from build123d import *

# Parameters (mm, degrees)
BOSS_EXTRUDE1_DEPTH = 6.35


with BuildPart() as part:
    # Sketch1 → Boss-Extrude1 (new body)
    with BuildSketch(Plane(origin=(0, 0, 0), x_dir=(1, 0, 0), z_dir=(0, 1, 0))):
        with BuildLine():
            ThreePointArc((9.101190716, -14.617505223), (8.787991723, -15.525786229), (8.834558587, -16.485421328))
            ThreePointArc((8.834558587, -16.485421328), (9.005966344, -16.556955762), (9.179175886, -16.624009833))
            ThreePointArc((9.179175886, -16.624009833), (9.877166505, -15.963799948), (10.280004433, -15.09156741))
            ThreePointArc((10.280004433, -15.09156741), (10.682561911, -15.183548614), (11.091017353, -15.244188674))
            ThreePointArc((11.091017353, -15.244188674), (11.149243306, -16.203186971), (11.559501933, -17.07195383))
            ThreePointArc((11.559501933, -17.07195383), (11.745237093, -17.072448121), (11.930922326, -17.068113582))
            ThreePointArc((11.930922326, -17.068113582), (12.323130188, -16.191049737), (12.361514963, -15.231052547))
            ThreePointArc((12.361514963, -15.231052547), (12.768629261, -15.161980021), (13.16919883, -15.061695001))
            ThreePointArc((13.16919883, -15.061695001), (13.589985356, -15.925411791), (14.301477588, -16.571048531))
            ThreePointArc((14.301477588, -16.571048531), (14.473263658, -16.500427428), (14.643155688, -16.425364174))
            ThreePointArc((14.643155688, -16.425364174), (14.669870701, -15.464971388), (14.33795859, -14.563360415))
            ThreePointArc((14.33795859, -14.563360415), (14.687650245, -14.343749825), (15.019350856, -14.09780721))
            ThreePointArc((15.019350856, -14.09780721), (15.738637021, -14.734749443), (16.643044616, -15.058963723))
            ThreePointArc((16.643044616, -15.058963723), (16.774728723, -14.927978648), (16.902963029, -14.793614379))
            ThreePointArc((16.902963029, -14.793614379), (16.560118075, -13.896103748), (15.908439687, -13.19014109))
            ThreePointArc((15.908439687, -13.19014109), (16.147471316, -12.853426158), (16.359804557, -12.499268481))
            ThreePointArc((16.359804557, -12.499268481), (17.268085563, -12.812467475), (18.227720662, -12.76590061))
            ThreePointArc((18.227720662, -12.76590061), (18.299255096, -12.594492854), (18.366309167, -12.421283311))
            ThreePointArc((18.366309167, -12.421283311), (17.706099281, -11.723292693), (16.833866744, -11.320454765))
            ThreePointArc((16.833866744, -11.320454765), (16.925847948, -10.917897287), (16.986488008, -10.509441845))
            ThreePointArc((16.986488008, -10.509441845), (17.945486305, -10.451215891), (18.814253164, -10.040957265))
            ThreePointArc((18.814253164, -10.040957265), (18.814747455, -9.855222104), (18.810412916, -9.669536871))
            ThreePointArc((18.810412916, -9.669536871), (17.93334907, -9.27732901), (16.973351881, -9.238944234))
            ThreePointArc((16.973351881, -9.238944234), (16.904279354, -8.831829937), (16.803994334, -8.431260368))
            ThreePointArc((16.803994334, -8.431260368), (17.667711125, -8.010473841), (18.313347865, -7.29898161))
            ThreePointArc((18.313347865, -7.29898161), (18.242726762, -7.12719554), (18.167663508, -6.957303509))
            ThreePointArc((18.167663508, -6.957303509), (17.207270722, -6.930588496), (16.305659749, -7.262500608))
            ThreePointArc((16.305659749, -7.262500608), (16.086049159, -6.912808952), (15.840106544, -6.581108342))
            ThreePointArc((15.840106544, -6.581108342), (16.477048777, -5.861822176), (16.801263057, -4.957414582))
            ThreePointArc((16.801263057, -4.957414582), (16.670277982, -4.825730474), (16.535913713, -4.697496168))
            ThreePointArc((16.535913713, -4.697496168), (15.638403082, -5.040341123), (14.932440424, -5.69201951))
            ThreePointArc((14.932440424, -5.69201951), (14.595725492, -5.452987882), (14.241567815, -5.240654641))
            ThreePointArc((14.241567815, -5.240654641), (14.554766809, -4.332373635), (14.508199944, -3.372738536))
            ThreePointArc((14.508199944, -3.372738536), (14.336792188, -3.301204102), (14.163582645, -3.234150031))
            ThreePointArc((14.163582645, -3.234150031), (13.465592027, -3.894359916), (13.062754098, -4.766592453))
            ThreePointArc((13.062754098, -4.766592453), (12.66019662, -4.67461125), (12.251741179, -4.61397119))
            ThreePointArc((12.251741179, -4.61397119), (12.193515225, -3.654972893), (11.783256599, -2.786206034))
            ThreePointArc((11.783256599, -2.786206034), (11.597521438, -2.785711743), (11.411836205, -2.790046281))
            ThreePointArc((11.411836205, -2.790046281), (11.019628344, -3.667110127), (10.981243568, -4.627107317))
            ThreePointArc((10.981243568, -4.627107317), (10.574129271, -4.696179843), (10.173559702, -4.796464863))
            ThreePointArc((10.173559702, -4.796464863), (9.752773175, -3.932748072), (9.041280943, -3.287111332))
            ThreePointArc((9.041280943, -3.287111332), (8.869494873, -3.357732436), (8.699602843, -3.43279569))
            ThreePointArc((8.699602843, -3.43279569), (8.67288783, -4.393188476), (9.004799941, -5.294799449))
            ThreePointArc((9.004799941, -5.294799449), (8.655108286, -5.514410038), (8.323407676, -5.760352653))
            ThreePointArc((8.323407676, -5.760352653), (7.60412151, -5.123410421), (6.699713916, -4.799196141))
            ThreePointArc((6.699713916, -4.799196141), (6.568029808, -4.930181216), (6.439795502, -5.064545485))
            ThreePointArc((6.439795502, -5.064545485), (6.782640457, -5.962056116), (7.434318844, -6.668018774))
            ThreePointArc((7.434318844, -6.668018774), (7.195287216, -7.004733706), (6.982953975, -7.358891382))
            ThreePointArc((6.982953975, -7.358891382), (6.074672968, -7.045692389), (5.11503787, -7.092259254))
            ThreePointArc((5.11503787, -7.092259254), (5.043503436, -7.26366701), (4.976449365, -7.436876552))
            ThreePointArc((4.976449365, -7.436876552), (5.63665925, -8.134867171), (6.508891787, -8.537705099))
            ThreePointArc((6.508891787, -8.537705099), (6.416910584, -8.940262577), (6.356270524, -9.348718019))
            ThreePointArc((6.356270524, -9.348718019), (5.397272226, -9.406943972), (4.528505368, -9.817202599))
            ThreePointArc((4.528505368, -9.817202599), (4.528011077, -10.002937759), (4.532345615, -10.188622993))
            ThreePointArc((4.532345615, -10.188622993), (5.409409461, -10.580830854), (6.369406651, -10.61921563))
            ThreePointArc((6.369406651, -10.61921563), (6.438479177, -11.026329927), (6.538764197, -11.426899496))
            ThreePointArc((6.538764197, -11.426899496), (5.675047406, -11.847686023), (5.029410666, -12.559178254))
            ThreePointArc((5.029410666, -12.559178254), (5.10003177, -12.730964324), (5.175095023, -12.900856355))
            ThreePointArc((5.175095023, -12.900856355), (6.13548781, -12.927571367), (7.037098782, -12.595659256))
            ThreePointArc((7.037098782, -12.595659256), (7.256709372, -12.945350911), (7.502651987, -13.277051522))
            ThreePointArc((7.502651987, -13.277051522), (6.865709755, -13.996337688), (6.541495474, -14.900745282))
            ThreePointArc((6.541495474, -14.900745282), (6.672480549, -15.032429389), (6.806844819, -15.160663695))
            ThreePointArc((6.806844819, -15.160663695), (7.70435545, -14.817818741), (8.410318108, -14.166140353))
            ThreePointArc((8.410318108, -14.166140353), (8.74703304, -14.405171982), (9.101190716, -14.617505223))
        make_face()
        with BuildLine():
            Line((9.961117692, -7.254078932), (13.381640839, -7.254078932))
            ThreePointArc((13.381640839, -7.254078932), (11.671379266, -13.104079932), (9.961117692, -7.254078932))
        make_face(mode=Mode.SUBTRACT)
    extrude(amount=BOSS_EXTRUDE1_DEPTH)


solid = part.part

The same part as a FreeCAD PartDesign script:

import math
import FreeCAD as App
import Part
import Sketcher
from FreeCAD import Vector
Q = App.Units.Quantity

doc = App.newDocument("Part")
body = doc.addObject("PartDesign::Body", "Body")

# Sketch on XZ plane
sketch1 = body.newObject("Sketcher::SketchObject", "Sketch")
sketch1.AttachmentSupport = (doc.getObject("XZ_Plane"), [""])
sketch1.MapMode = "FlatFace"
sketch1.addGeometry([
    Part.ArcOfCircle(Part.Circle(Vector(11.302504, 15.884715, 0), Vector(0, 0, 1), 2.54), math.radians(166.320036), math.radians(209.927361)),  # 0
    Part.ArcOfCircle(Part.Circle(Vector(11.67138, 9.929079, 0), Vector(0, 0, 1), 7.143751), math.radians(110.417901), math.radians(113.397338)),  # 1
    Part.ArcOfCircle(Part.Circle(Vector(7.814256, 14.48191, 0), Vector(0, 0, 1), 2.54), math.radians(13.887878), math.radians(57.495203)),  # 2
    Part.ArcOfCircle(Part.Circle(Vector(11.671379, 9.92908, 0), Vector(0, 0, 1), 5.3467), math.radians(96.231495), math.radians(105.083744)),  # 3
    Part.ArcOfCircle(Part.Circle(Vector(13.609706, 15.572532, 0), Vector(0, 0, 1), 2.54), math.radians(143.820036), math.radians(187.427361)),  # 4
    Part.ArcOfCircle(Part.Circle(Vector(11.671379, 9.929081, 0), Vector(0, 0, 1), 7.143749), math.radians(87.917901), math.radians(90.897339)),  # 5
    Part.ArcOfCircle(Part.Circle(Vector(9.850154, 15.611404, 0), Vector(0, 0, 1), 2.54), math.radians(-8.612122), math.radians(34.995203)),  # 6
    Part.ArcOfCircle(Part.Circle(Vector(11.671379, 9.92908, 0), Vector(0, 0, 1), 5.3467), math.radians(73.731495), math.radians(82.583744)),  # 7
    Part.ArcOfCircle(Part.Circle(Vector(15.621815, 14.401185, 0), Vector(0, 0, 1), 2.54), math.radians(121.320036), math.radians(164.927361)),  # 8
    Part.ArcOfCircle(Part.Circle(Vector(11.67138, 9.929081, 0), Vector(0, 0, 1), 7.143749), math.radians(65.417901), math.radians(68.397339)),  # 9
    Part.ArcOfCircle(Part.Circle(Vector(12.163318, 15.875815, 0), Vector(0, 0, 1), 2.54), math.radians(-31.112122), math.radians(12.495203)),  # 10
    Part.ArcOfCircle(Part.Circle(Vector(11.671379, 9.92908, 0), Vector(0, 0, 1), 5.3467), math.radians(51.231495), math.radians(60.083744)),  # 11
    Part.ArcOfCircle(Part.Circle(Vector(17.032506, 12.549, 0), Vector(0, 0, 1), 2.54), math.radians(98.820036), math.radians(142.427361)),  # 12
    Part.ArcOfCircle(Part.Circle(Vector(11.671378, 9.929079, 0), Vector(0, 0, 1), 7.143751), math.radians(42.917901), math.radians(45.897338)),  # 13
    Part.ArcOfCircle(Part.Circle(Vector(14.401588, 15.23489, 0), Vector(0, 0, 1), 2.54), math.radians(-53.612122), math.radians(-10.004797)),  # 14
    Part.ArcOfCircle(Part.Circle(Vector(11.671379, 9.92908, 0), Vector(0, 0, 1), 5.3467), math.radians(28.731495), math.radians(37.583744)),  # 15
    Part.ArcOfCircle(Part.Circle(Vector(17.627015, 10.297956, 0), Vector(0, 0, 1), 2.54), math.radians(76.320036), math.radians(119.927361)),  # 16
    Part.ArcOfCircle(Part.Circle(Vector(11.67138, 9.92908, 0), Vector(0, 0, 1), 7.14375), math.radians(20.417901), math.radians(23.397338)),  # 17
    Part.ArcOfCircle(Part.Circle(Vector(16.224209, 13.786204, 0), Vector(0, 0, 1), 2.54), math.radians(-76.112122), math.radians(-32.504797)),  # 18
    Part.ArcOfCircle(Part.Circle(Vector(11.671379, 9.92908, 0), Vector(0, 0, 1), 5.3467), math.radians(6.231495), math.radians(15.083744)),  # 19
    Part.ArcOfCircle(Part.Circle(Vector(17.314832, 7.990754, 0), Vector(0, 0, 1), 2.54), math.radians(53.820036), math.radians(97.427361)),  # 20
    Part.ArcOfCircle(Part.Circle(Vector(11.67138, 9.92908, 0), Vector(0, 0, 1), 7.143749), math.radians(-2.082099), math.radians(0.897339)),  # 21
    Part.ArcOfCircle(Part.Circle(Vector(17.353703, 11.750305, 0), Vector(0, 0, 1), 2.54), math.radians(-98.612122), math.radians(-55.004797)),  # 22
    Part.ArcOfCircle(Part.Circle(Vector(11.671379, 9.92908, 0), Vector(0, 0, 1), 5.3467), math.radians(-16.268505), math.radians(-7.416256)),  # 23
    Part.ArcOfCircle(Part.Circle(Vector(16.143484, 5.978644, 0), Vector(0, 0, 1), 2.54), math.radians(31.320036), math.radians(74.927361)),  # 24
    Part.ArcOfCircle(Part.Circle(Vector(11.67138, 9.92908, 0), Vector(0, 0, 1), 7.14375), math.radians(-24.582099), math.radians(-21.602661)),  # 25
    Part.ArcOfCircle(Part.Circle(Vector(17.618115, 9.437141, 0), Vector(0, 0, 1), 2.54), math.radians(-121.112122), math.radians(-77.504797)),  # 26
    Part.ArcOfCircle(Part.Circle(Vector(11.671379, 9.92908, 0), Vector(0, 0, 1), 5.3467), math.radians(-38.768505), math.radians(-29.916256)),  # 27
    Part.ArcOfCircle(Part.Circle(Vector(14.291299, 4.567953, 0), Vector(0, 0, 1), 2.54), math.radians(8.820036), math.radians(52.427361)),  # 28
    Part.ArcOfCircle(Part.Circle(Vector(11.671379, 9.92908, 0), Vector(0, 0, 1), 7.14375), math.radians(-47.082099), math.radians(-44.102662)),  # 29
    Part.ArcOfCircle(Part.Circle(Vector(16.97719, 7.198871, 0), Vector(0, 0, 1), 2.54), math.radians(-143.612122), math.radians(-100.004797)),  # 30
    Part.ArcOfCircle(Part.Circle(Vector(11.671379, 9.92908, 0), Vector(0, 0, 1), 5.3467), math.radians(-61.268505), math.radians(-52.416256)),  # 31
    Part.ArcOfCircle(Part.Circle(Vector(12.040255, 3.973444, 0), Vector(0, 0, 1), 2.54), math.radians(-13.679964), math.radians(29.927361)),  # 32
    Part.ArcOfCircle(Part.Circle(Vector(11.671379, 9.92908, 0), Vector(0, 0, 1), 7.14375), math.radians(-69.582099), math.radians(-66.602662)),  # 33
    Part.ArcOfCircle(Part.Circle(Vector(15.528503, 5.37625, 0), Vector(0, 0, 1), 2.54), math.radians(-166.112122), math.radians(-122.504797)),  # 34
    Part.ArcOfCircle(Part.Circle(Vector(11.671379, 9.92908, 0), Vector(0, 0, 1), 5.3467), math.radians(-83.768505), math.radians(-74.916256)),  # 35
    Part.ArcOfCircle(Part.Circle(Vector(9.733053, 4.285628, 0), Vector(0, 0, 1), 2.54), math.radians(-36.179964), math.radians(7.427361)),  # 36
    Part.ArcOfCircle(Part.Circle(Vector(11.671379, 9.929081, 0), Vector(0, 0, 1), 7.143751), math.radians(-92.082099), math.radians(-89.102662)),  # 37
    Part.ArcOfCircle(Part.Circle(Vector(13.492604, 4.246756, 0), Vector(0, 0, 1), 2.54), math.radians(171.387878), math.radians(214.995203)),  # 38
    Part.ArcOfCircle(Part.Circle(Vector(11.671379, 9.92908, 0), Vector(0, 0, 1), 5.3467), math.radians(-106.268505), math.radians(-97.416256)),  # 39
    Part.ArcOfCircle(Part.Circle(Vector(7.720944, 5.456975, 0), Vector(0, 0, 1), 2.54), math.radians(-58.679964), math.radians(-15.072639)),  # 40
    Part.ArcOfCircle(Part.Circle(Vector(11.671379, 9.92908, 0), Vector(0, 0, 1), 7.14375), math.radians(-114.582099), math.radians(-111.602662)),  # 41
    Part.ArcOfCircle(Part.Circle(Vector(11.179441, 3.982345, 0), Vector(0, 0, 1), 2.54), math.radians(148.887878), math.radians(192.495203)),  # 42
    Part.ArcOfCircle(Part.Circle(Vector(11.671379, 9.92908, 0), Vector(0, 0, 1), 5.3467), math.radians(-128.768505), math.radians(-119.916256)),  # 43
    Part.ArcOfCircle(Part.Circle(Vector(6.310252, 7.30916, 0), Vector(0, 0, 1), 2.54), math.radians(-81.179964), math.radians(-37.572639)),  # 44
    Part.ArcOfCircle(Part.Circle(Vector(11.671379, 9.92908, 0), Vector(0, 0, 1), 7.14375), math.radians(-137.082099), math.radians(-134.102662)),  # 45
    Part.ArcOfCircle(Part.Circle(Vector(8.94117, 4.62327, 0), Vector(0, 0, 1), 2.54), math.radians(126.387878), math.radians(169.995203)),  # 46
    Part.ArcOfCircle(Part.Circle(Vector(11.671379, 9.92908, 0), Vector(0, 0, 1), 5.3467), math.radians(-151.268505), math.radians(-142.416256)),  # 47
    Part.ArcOfCircle(Part.Circle(Vector(5.715744, 9.560204, 0), Vector(0, 0, 1), 2.54), math.radians(-103.679964), math.radians(-60.072639)),  # 48
    Part.ArcOfCircle(Part.Circle(Vector(11.671379, 9.92908, 0), Vector(0, 0, 1), 7.14375), math.radians(-159.582099), math.radians(-156.602662)),  # 49
    Part.ArcOfCircle(Part.Circle(Vector(7.118549, 6.071956, 0), Vector(0, 0, 1), 2.54), math.radians(103.887878), math.radians(147.495203)),  # 50
    Part.ArcOfCircle(Part.Circle(Vector(11.671379, 9.92908, 0), Vector(0, 0, 1), 5.3467), math.radians(-173.768505), math.radians(-164.916256)),  # 51
    Part.ArcOfCircle(Part.Circle(Vector(6.027927, 11.867406, 0), Vector(0, 0, 1), 2.54), math.radians(-126.179964), math.radians(-82.572639)),  # 52
    Part.ArcOfCircle(Part.Circle(Vector(11.67138, 9.92908, 0), Vector(0, 0, 1), 7.143751), math.radians(177.917901), math.radians(180.897338)),  # 53
    Part.ArcOfCircle(Part.Circle(Vector(5.989056, 8.107855, 0), Vector(0, 0, 1), 2.54), math.radians(81.387878), math.radians(124.995203)),  # 54
    Part.ArcOfCircle(Part.Circle(Vector(11.671379, 9.92908, 0), Vector(0, 0, 1), 5.3467), math.radians(163.731495), math.radians(172.583744)),  # 55
    Part.ArcOfCircle(Part.Circle(Vector(7.199275, 13.879516, 0), Vector(0, 0, 1), 2.54), math.radians(-148.679964), math.radians(-105.072639)),  # 56
    Part.ArcOfCircle(Part.Circle(Vector(11.671381, 9.929079, 0), Vector(0, 0, 1), 7.143752), math.radians(155.417901), math.radians(158.397338)),  # 57
    Part.ArcOfCircle(Part.Circle(Vector(5.724644, 10.421018, 0), Vector(0, 0, 1), 2.54), math.radians(58.887878), math.radians(102.495203)),  # 58
    Part.ArcOfCircle(Part.Circle(Vector(11.671379, 9.92908, 0), Vector(0, 0, 1), 5.3467), math.radians(141.231495), math.radians(150.083744)),  # 59
    Part.ArcOfCircle(Part.Circle(Vector(9.05146, 15.290207, 0), Vector(0, 0, 1), 2.54), math.radians(-171.179964), math.radians(-127.572639)),  # 60
    Part.ArcOfCircle(Part.Circle(Vector(11.671379, 9.92908, 0), Vector(0, 0, 1), 7.14375), math.radians(132.917901), math.radians(135.897338)),  # 61
    Part.ArcOfCircle(Part.Circle(Vector(6.365569, 12.659289, 0), Vector(0, 0, 1), 2.54), math.radians(36.387878), math.radians(79.995203)),  # 62
    Part.ArcOfCircle(Part.Circle(Vector(11.671379, 9.92908, 0), Vector(0, 0, 1), 5.3467), math.radians(118.731495), math.radians(127.583744)),  # 63
    Part.ArcOfCircle(Part.Circle(Vector(11.671379, 9.92908, 0), Vector(0, 0, 1), 3.175), math.radians(-57.40719), math.radians(237.40719)),  # 64
    Part.LineSegment(Vector(9.961118, 7.254079, 0), Vector(13.381641, 7.254079, 0)),  # 65
], False)
sketch1.addConstraint([
    Sketcher.Constraint("Coincident", 0, 1, 1, 2),
    Sketcher.Constraint("Coincident", 1, 1, 2, 2),
    Sketcher.Constraint("Coincident", 2, 1, 3, 2),
    Sketcher.Constraint("Coincident", 3, 1, 4, 2),
    Sketcher.Constraint("Coincident", 4, 1, 5, 2),
    Sketcher.Constraint("Coincident", 5, 1, 6, 2),
    Sketcher.Constraint("Coincident", 6, 1, 7, 2),
    Sketcher.Constraint("Coincident", 7, 1, 8, 2),
    Sketcher.Constraint("Coincident", 8, 1, 9, 2),
    Sketcher.Constraint("Coincident", 9, 1, 10, 2),
    Sketcher.Constraint("Coincident", 10, 1, 11, 2),
    Sketcher.Constraint("Coincident", 11, 1, 12, 2),
    Sketcher.Constraint("Coincident", 12, 1, 13, 2),
    Sketcher.Constraint("Coincident", 13, 1, 14, 2),
    Sketcher.Constraint("Coincident", 14, 1, 15, 2),
    Sketcher.Constraint("Coincident", 15, 1, 16, 2),
    Sketcher.Constraint("Coincident", 16, 1, 17, 2),
    Sketcher.Constraint("Coincident", 17, 1, 18, 2),
    Sketcher.Constraint("Coincident", 18, 1, 19, 2),
    Sketcher.Constraint("Coincident", 19, 1, 20, 2),
    Sketcher.Constraint("Coincident", 20, 1, 21, 2),
    Sketcher.Constraint("Coincident", 21, 1, 22, 2),
    Sketcher.Constraint("Coincident", 22, 1, 23, 2),
    Sketcher.Constraint("Coincident", 23, 1, 24, 2),
    Sketcher.Constraint("Coincident", 24, 1, 25, 2),
    Sketcher.Constraint("Coincident", 25, 1, 26, 2),
    Sketcher.Constraint("Coincident", 26, 1, 27, 2),
    Sketcher.Constraint("Coincident", 27, 1, 28, 2),
    Sketcher.Constraint("Coincident", 28, 1, 29, 2),
    Sketcher.Constraint("Coincident", 29, 1, 30, 2),
    Sketcher.Constraint("Coincident", 30, 1, 31, 2),
    Sketcher.Constraint("Coincident", 31, 1, 32, 2),
    Sketcher.Constraint("Coincident", 32, 1, 33, 2),
    Sketcher.Constraint("Coincident", 33, 1, 34, 2),
    Sketcher.Constraint("Coincident", 34, 1, 35, 2),
    Sketcher.Constraint("Coincident", 35, 1, 36, 2),
    Sketcher.Constraint("Coincident", 36, 1, 37, 2),
    Sketcher.Constraint("Coincident", 37, 1, 38, 2),
    Sketcher.Constraint("Coincident", 38, 1, 39, 2),
    Sketcher.Constraint("Coincident", 39, 1, 40, 2),
    Sketcher.Constraint("Coincident", 40, 1, 41, 2),
    Sketcher.Constraint("Coincident", 41, 1, 42, 2),
    Sketcher.Constraint("Coincident", 42, 1, 43, 2),
    Sketcher.Constraint("Coincident", 43, 1, 44, 2),
    Sketcher.Constraint("Coincident", 44, 1, 45, 2),
    Sketcher.Constraint("Coincident", 45, 1, 46, 2),
    Sketcher.Constraint("Coincident", 46, 1, 47, 2),
    Sketcher.Constraint("Coincident", 47, 1, 48, 2),
    Sketcher.Constraint("Coincident", 48, 1, 49, 2),
    Sketcher.Constraint("Coincident", 49, 1, 50, 2),
    Sketcher.Constraint("Coincident", 50, 1, 51, 2),
    Sketcher.Constraint("Coincident", 51, 1, 52, 2),
    Sketcher.Constraint("Coincident", 52, 1, 53, 2),
    Sketcher.Constraint("Coincident", 53, 1, 54, 2),
    Sketcher.Constraint("Coincident", 54, 1, 55, 2),
    Sketcher.Constraint("Coincident", 55, 1, 56, 2),
    Sketcher.Constraint("Coincident", 56, 1, 57, 2),
    Sketcher.Constraint("Coincident", 57, 1, 58, 2),
    Sketcher.Constraint("Coincident", 58, 1, 59, 2),
    Sketcher.Constraint("Coincident", 59, 1, 60, 2),
    Sketcher.Constraint("Coincident", 60, 1, 61, 2),
    Sketcher.Constraint("Coincident", 61, 1, 62, 2),
    Sketcher.Constraint("Coincident", 62, 1, 63, 2),
    Sketcher.Constraint("Coincident", 63, 1, 0, 2),
    Sketcher.Constraint("Coincident", 64, 1, 65, 2),
    Sketcher.Constraint("Coincident", 65, 1, 64, 2),
    Sketcher.Constraint("Horizontal", 65),
    Sketcher.Constraint("Coincident", 3, 3, 1, 3),
    Sketcher.Constraint("Coincident", 5, 3, 1, 3),
    Sketcher.Constraint("Coincident", 7, 3, 1, 3),
    Sketcher.Constraint("Coincident", 9, 3, 1, 3),
    Sketcher.Constraint("Coincident", 11, 3, 1, 3),
    Sketcher.Constraint("Coincident", 13, 3, 1, 3),
    Sketcher.Constraint("Coincident", 15, 3, 1, 3),
    Sketcher.Constraint("Coincident", 17, 3, 1, 3),
    Sketcher.Constraint("Coincident", 19, 3, 1, 3),
    Sketcher.Constraint("Coincident", 21, 3, 1, 3),
    Sketcher.Constraint("Coincident", 23, 3, 1, 3),
    Sketcher.Constraint("Coincident", 25, 3, 1, 3),
    Sketcher.Constraint("Coincident", 27, 3, 1, 3),
    Sketcher.Constraint("Coincident", 29, 3, 1, 3),
    Sketcher.Constraint("Coincident", 31, 3, 1, 3),
    Sketcher.Constraint("Coincident", 33, 3, 1, 3),
    Sketcher.Constraint("Coincident", 35, 3, 1, 3),
    Sketcher.Constraint("Coincident", 37, 3, 1, 3),
    Sketcher.Constraint("Coincident", 39, 3, 1, 3),
    Sketcher.Constraint("Coincident", 41, 3, 1, 3),
    Sketcher.Constraint("Coincident", 43, 3, 1, 3),
    Sketcher.Constraint("Coincident", 45, 3, 1, 3),
    Sketcher.Constraint("Coincident", 47, 3, 1, 3),
    Sketcher.Constraint("Coincident", 49, 3, 1, 3),
    Sketcher.Constraint("Coincident", 51, 3, 1, 3),
    Sketcher.Constraint("Coincident", 53, 3, 1, 3),
    Sketcher.Constraint("Coincident", 55, 3, 1, 3),
    Sketcher.Constraint("Coincident", 57, 3, 1, 3),
    Sketcher.Constraint("Coincident", 59, 3, 1, 3),
    Sketcher.Constraint("Coincident", 61, 3, 1, 3),
    Sketcher.Constraint("Coincident", 63, 3, 1, 3),
    Sketcher.Constraint("Coincident", 64, 3, 1, 3),
    Sketcher.Constraint("Equal", 0, 2),
    Sketcher.Constraint("Equal", 2, 4),
    Sketcher.Constraint("Equal", 1, 5),
    Sketcher.Constraint("Equal", 4, 6),
    Sketcher.Constraint("Equal", 3, 7),
    Sketcher.Constraint("Equal", 6, 8),
    Sketcher.Constraint("Equal", 5, 9),
    Sketcher.Constraint("Equal", 8, 10),
    Sketcher.Constraint("Equal", 7, 11),
    Sketcher.Constraint("Equal", 10, 12),
    Sketcher.Constraint("Equal", 5, 13),
    Sketcher.Constraint("Equal", 12, 14),
    Sketcher.Constraint("Equal", 11, 15),
    Sketcher.Constraint("Equal", 14, 16),
    Sketcher.Constraint("Equal", 13, 17),
    Sketcher.Constraint("Equal", 16, 18),
    Sketcher.Constraint("Equal", 15, 19),
    Sketcher.Constraint("Equal", 18, 20),
    Sketcher.Constraint("Equal", 17, 21),
    Sketcher.Constraint("Equal", 20, 22),
    Sketcher.Constraint("Equal", 19, 23),
    Sketcher.Constraint("Equal", 22, 24),
    Sketcher.Constraint("Equal", 21, 25),
    Sketcher.Constraint("Equal", 24, 26),
    Sketcher.Constraint("Equal", 23, 27),
    Sketcher.Constraint("Equal", 26, 28),
    Sketcher.Constraint("Equal", 25, 29),
    Sketcher.Constraint("Equal", 28, 30),
    Sketcher.Constraint("Equal", 27, 31),
    Sketcher.Constraint("Equal", 30, 32),
    Sketcher.Constraint("Equal", 29, 33),
    Sketcher.Constraint("Equal", 32, 34),
    Sketcher.Constraint("Equal", 31, 35),
    Sketcher.Constraint("Equal", 34, 36),
    Sketcher.Constraint("Equal", 33, 37),
    Sketcher.Constraint("Equal", 36, 38),
    Sketcher.Constraint("Equal", 35, 39),
    Sketcher.Constraint("Equal", 38, 40),
    Sketcher.Constraint("Equal", 37, 41),
    Sketcher.Constraint("Equal", 40, 42),
    Sketcher.Constraint("Equal", 39, 43),
    Sketcher.Constraint("Equal", 42, 44),
    Sketcher.Constraint("Equal", 41, 45),
    Sketcher.Constraint("Equal", 44, 46),
    Sketcher.Constraint("Equal", 43, 47),
    Sketcher.Constraint("Equal", 46, 48),
    Sketcher.Constraint("Equal", 45, 49),
    Sketcher.Constraint("Equal", 48, 50),
    Sketcher.Constraint("Equal", 47, 51),
    Sketcher.Constraint("Equal", 50, 52),
    Sketcher.Constraint("Equal", 49, 53),
    Sketcher.Constraint("Equal", 52, 54),
    Sketcher.Constraint("Equal", 51, 55),
    Sketcher.Constraint("Equal", 54, 56),
    Sketcher.Constraint("Equal", 53, 57),
    Sketcher.Constraint("Equal", 56, 58),
    Sketcher.Constraint("Equal", 55, 59),
    Sketcher.Constraint("Equal", 58, 60),
    Sketcher.Constraint("Equal", 53, 61),
    Sketcher.Constraint("Equal", 60, 62),
    Sketcher.Constraint("Equal", 59, 63),
    Sketcher.Constraint("Radius", 0, Q("0.1 in")),
    Sketcher.Constraint("Radius", 1, Q("0.28125 in")),
    Sketcher.Constraint("Radius", 64, Q("0.125 in")),
    Sketcher.Constraint("Radius", 3, Q("0.2105 in")),
    Sketcher.Constraint("DistanceY", -1, 1, 12, 3, Q("12.549 mm")),
    Sketcher.Constraint("DistanceX", -1, 1, 28, 3, Q("14.291299 mm")),
    Sketcher.Constraint("DistanceX", -1, 1, 4, 1, Q("11.559502 mm")),
    Sketcher.Constraint("DistanceX", -1, 1, 7, 1, Q("13.169199 mm")),
    Sketcher.Constraint("DistanceY", -1, 1, 16, 1, Q("12.765901 mm")),
    Sketcher.Constraint("DistanceY", -1, 1, 26, 1, Q("7.262501 mm")),
    Sketcher.Constraint("DistanceX", -1, 1, 32, 1, Q("14.5082 mm")),
    Sketcher.Constraint("DistanceX", -1, 1, 42, 1, Q("9.0048 mm")),
    Sketcher.Constraint("DistanceY", -1, 1, 42, 1, Q("5.294799 mm")),
    Sketcher.Constraint("DistanceY", -1, 1, 55, 1, Q("11.426899 mm")),
    Sketcher.Constraint("DistanceX", -1, 1, 58, 1, Q("7.037099 mm")),
    Sketcher.Constraint("DistanceX", 65, 1, 65, 2, Q("3.420523 mm")),
    Sketcher.Constraint("DistanceX", -1, 1, 1, 3, Q("11.67138 mm")),
    Sketcher.Constraint("DistanceY", -1, 1, 2, 3, Q("14.48191 mm")),
    Sketcher.Constraint("DistanceX", -1, 1, 14, 3, Q("14.401588 mm")),
    Sketcher.Constraint("DistanceY", -1, 1, 14, 3, Q("15.23489 mm")),
    Sketcher.Constraint("DistanceX", -1, 1, 18, 3, Q("16.224209 mm")),
    Sketcher.Constraint("DistanceX", -1, 1, 20, 3, Q("17.314832 mm")),
    Sketcher.Constraint("DistanceY", -1, 1, 26, 3, Q("9.437141 mm")),
    Sketcher.Constraint("DistanceX", -1, 1, 30, 3, Q("16.97719 mm")),
    Sketcher.Constraint("DistanceY", -1, 1, 30, 3, Q("7.198871 mm")),
    Sketcher.Constraint("DistanceY", -1, 1, 34, 3, Q("5.37625 mm")),
    Sketcher.Constraint("DistanceX", -1, 1, 42, 3, Q("11.179441 mm")),
    Sketcher.Constraint("DistanceY", -1, 1, 44, 3, Q("7.30916 mm")),
    Sketcher.Constraint("DistanceX", -1, 1, 46, 3, Q("8.94117 mm")),
    Sketcher.Constraint("DistanceY", -1, 1, 46, 3, Q("4.62327 mm")),
    Sketcher.Constraint("DistanceX", -1, 1, 50, 3, Q("7.118549 mm")),
    Sketcher.Constraint("DistanceY", -1, 1, 58, 3, Q("10.421018 mm")),
    Sketcher.Constraint("DistanceX", -1, 1, 60, 3, Q("9.05146 mm")),
    Sketcher.Constraint("DistanceX", -1, 1, 62, 3, Q("6.365569 mm")),
    Sketcher.Constraint("DistanceY", -1, 1, 62, 3, Q("12.659289 mm")),
    Sketcher.Constraint("DistanceX", -1, 1, 0, 1, Q("8.834559 mm")),
    Sketcher.Constraint("DistanceY", -1, 1, 1, 1, Q("16.62401 mm")),
    Sketcher.Constraint("DistanceY", -1, 1, 3, 1, Q("15.244189 mm")),
    Sketcher.Constraint("DistanceY", -1, 1, 8, 1, Q("16.571049 mm")),
    Sketcher.Constraint("DistanceX", -1, 1, 10, 1, Q("14.337959 mm")),
    Sketcher.Constraint("DistanceX", -1, 1, 11, 1, Q("15.019351 mm")),
    Sketcher.Constraint("DistanceY", -1, 1, 15, 1, Q("12.499268 mm")),
    Sketcher.Constraint("DistanceX", -1, 1, 17, 1, Q("18.366309 mm")),
    Sketcher.Constraint("DistanceX", -1, 1, 19, 1, Q("16.986488 mm")),
    Sketcher.Constraint("DistanceX", -1, 1, 22, 1, Q("16.973352 mm")),
    Sketcher.Constraint("DistanceY", -1, 1, 23, 1, Q("8.43126 mm")),
    Sketcher.Constraint("DistanceY", -1, 1, 24, 1, Q("7.298982 mm")),
    Sketcher.Constraint("DistanceY", -1, 1, 27, 1, Q("6.581108 mm")),
    Sketcher.Constraint("DistanceY", -1, 1, 33, 1, Q("3.23415 mm")),
    Sketcher.Constraint("DistanceX", -1, 1, 35, 1, Q("12.251741 mm")),
    Sketcher.Constraint("DistanceX", -1, 1, 39, 1, Q("10.17356 mm")),
    Sketcher.Constraint("DistanceX", -1, 1, 40, 1, Q("9.041281 mm")),
    Sketcher.Constraint("DistanceY", -1, 1, 47, 1, Q("7.358891 mm")),
    Sketcher.Constraint("DistanceY", -1, 1, 48, 1, Q("7.092259 mm")),
    Sketcher.Constraint("DistanceX", -1, 1, 49, 1, Q("4.976449 mm")),
    Sketcher.Constraint("DistanceX", -1, 1, 51, 1, Q("6.356271 mm")),
    Sketcher.Constraint("DistanceX", -1, 1, 56, 1, Q("5.029411 mm")),
    Sketcher.Constraint("DistanceX", -1, 1, 59, 1, Q("7.502652 mm")),
    Sketcher.Constraint("DistanceX", -1, 1, 63, 1, Q("9.101191 mm")),
    Sketcher.Constraint("DistanceX", -1, 1, 6, 3, Q("9.850154 mm")),
    Sketcher.Constraint("DistanceY", -1, 1, 6, 3, Q("15.611404 mm")),
    Sketcher.Constraint("DistanceX", -1, 1, 10, 3, Q("12.163318 mm")),
    Sketcher.Constraint("DistanceX", -1, 1, 22, 3, Q("17.353703 mm")),
    Sketcher.Constraint("DistanceX", -1, 1, 32, 3, Q("12.040255 mm")),
    Sketcher.Constraint("DistanceX", -1, 1, 36, 3, Q("9.733053 mm")),
    Sketcher.Constraint("DistanceX", -1, 1, 38, 3, Q("13.492604 mm")),
    Sketcher.Constraint("DistanceY", -1, 1, 38, 3, Q("4.246756 mm")),
    Sketcher.Constraint("DistanceX", -1, 1, 44, 3, Q("6.310252 mm")),
    Sketcher.Constraint("DistanceX", -1, 1, 52, 3, Q("6.027927 mm")),
    Sketcher.Constraint("DistanceX", -1, 1, 54, 3, Q("5.989056 mm")),
    Sketcher.Constraint("DistanceY", -1, 1, 54, 3, Q("8.107855 mm")),
])
pad1 = body.newObject("PartDesign::Pad", "Pad")
pad1.Profile = sketch1
pad1.Length = Q("0.25 in")
pad1.Reversed = True

doc.recompute()
